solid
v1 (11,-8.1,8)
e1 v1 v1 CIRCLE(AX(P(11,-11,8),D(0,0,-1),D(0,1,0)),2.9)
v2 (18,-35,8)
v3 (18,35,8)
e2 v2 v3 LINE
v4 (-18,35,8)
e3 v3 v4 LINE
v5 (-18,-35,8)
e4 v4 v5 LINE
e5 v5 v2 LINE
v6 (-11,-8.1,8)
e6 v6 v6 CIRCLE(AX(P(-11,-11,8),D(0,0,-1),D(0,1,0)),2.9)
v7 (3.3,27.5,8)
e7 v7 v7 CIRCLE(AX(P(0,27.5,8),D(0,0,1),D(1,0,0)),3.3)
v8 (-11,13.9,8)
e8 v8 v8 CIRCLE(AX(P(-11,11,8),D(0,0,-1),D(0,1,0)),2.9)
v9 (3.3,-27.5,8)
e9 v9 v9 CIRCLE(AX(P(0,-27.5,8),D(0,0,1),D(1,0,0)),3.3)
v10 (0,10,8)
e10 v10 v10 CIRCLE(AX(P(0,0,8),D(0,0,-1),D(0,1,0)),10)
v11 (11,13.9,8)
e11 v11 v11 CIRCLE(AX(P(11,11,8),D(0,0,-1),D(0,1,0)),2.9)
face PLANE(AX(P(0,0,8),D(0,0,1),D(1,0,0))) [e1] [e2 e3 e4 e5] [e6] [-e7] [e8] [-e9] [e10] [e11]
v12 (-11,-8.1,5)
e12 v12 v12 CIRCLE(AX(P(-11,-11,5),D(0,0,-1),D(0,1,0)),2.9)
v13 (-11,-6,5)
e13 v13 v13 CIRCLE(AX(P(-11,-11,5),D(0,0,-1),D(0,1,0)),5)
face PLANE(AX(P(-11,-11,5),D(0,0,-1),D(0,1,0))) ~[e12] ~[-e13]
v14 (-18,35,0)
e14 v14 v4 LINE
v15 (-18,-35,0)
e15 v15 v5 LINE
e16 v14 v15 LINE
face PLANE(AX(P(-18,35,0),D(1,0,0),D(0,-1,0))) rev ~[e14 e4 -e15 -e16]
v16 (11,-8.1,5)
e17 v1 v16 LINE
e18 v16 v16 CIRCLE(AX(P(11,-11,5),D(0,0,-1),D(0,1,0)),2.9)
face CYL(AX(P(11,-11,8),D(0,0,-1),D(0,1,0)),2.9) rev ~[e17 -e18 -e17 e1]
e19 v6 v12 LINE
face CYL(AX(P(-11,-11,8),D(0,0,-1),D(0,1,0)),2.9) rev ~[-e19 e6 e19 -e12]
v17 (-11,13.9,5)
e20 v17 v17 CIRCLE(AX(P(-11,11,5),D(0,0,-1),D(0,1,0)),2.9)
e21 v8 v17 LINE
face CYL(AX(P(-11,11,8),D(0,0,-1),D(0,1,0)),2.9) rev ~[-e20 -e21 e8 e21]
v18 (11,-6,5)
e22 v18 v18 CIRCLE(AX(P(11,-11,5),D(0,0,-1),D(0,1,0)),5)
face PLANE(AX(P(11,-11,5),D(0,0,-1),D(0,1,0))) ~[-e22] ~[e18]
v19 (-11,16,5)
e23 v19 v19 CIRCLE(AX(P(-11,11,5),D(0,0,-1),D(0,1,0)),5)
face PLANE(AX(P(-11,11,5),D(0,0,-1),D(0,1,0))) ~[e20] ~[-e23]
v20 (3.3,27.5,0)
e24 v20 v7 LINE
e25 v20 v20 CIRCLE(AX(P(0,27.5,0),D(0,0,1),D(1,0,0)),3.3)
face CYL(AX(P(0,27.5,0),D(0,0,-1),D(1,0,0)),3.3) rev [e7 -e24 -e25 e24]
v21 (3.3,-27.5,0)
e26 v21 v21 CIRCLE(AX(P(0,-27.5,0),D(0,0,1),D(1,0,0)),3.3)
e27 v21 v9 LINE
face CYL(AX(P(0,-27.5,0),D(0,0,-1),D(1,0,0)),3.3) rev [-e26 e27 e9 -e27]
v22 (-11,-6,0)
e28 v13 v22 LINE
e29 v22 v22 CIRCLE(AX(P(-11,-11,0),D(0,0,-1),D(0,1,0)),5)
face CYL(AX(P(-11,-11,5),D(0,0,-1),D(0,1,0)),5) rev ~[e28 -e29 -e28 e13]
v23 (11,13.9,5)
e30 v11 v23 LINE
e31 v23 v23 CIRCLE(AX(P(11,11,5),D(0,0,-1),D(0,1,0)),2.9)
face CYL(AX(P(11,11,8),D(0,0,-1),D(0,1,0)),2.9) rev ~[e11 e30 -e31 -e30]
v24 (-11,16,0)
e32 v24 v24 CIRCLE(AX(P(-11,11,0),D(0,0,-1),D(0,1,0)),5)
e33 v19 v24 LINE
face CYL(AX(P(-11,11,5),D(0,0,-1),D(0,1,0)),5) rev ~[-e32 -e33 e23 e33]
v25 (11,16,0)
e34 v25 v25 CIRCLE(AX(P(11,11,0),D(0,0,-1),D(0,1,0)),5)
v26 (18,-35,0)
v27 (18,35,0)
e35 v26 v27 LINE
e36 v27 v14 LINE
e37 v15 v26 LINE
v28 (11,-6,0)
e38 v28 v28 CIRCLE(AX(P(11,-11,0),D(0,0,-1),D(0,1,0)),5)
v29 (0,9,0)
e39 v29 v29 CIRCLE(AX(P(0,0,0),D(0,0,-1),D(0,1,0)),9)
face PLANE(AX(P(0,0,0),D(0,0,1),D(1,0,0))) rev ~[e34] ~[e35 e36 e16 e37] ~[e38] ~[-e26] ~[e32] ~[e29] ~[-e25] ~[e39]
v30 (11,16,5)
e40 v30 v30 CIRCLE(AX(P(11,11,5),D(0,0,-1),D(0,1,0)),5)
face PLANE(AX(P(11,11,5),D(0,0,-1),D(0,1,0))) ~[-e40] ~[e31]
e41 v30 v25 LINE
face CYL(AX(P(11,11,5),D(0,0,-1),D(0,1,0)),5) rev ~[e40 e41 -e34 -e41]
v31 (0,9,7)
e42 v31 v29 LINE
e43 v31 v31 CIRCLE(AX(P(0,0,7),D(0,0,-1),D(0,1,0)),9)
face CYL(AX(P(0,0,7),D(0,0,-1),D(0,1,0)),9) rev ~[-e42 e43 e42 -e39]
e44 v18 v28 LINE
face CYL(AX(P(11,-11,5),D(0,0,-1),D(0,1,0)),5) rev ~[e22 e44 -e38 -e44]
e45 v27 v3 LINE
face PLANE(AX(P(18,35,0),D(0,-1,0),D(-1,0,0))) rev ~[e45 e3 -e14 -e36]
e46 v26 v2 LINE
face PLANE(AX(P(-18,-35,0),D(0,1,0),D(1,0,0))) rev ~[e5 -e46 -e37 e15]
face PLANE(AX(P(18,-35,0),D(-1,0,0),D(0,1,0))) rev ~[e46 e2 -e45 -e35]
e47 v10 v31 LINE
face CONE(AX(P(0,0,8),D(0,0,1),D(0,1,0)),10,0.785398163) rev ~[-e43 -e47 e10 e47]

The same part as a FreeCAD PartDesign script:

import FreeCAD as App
import Part
import Sketcher
Q = App.Units.Quantity


def add_polygon(sketch, points):
    """Adds a closed chain of lines whose ends are joined by coincident constraints."""
    first, n = sketch.GeometryCount, len(points)
    for a, b in zip(points, points[1:] + points[:1]):
        sketch.addGeometry(Part.LineSegment(App.Vector(*a, 0), App.Vector(*b, 0)), False)
    for i in range(n):
        sketch.addConstraint(Sketcher.Constraint("Coincident", first + i, 2, first + (i + 1) % n, 1))

doc = App.newDocument("Part")
params = doc.addObject("Spreadsheet::Sheet", "Params")
for row, (alias, value) in enumerate([
    ("sketch1_diameter", "6.6 mm"),
    ("sketch1_width", "36 mm"),
    ("sketch1_height", "70 mm"),
    ("pad1_length", "8 mm"),
    ("sketch2_width", "9 mm"),
    ("sketch2_width2", "10 mm"),
    ("sketch2_height", "8 mm"),
    ("sketch2_height2", "7 mm"),
    ("groove_angle", "360 deg"),
    ("sketch3_width", "5 mm"),
    ("sketch3_height", "8 mm"),
    ("sketch3_width2", "2.1 mm"),
    ("groove2_angle", "360 deg"),
    ("sketch4_width", "5 mm"),
    ("sketch4_height", "8 mm"),
    ("sketch4_width2", "2.1 mm"),
    ("groove3_angle", "360 deg"),
    ("sketch5_width", "5 mm"),
    ("sketch5_height", "8 mm"),
    ("sketch5_width2", "2.1 mm"),
    ("groove4_angle", "360 deg"),
    ("sketch6_width", "5 mm"),
    ("sketch6_height", "8 mm"),
    ("sketch6_width2", "2.1 mm"),
    ("groove5_angle", "360 deg"),
], start=1):
    params.set(f"A{row}", alias)
    params.set(f"B{row}", "=" + value)
    params.setAlias(f"B{row}", alias)

body = doc.addObject("PartDesign::Body", "Body")

# Sketch on XY plane
sketch1 = body.newObject("Sketcher::SketchObject", "Sketch")
sketch1.AttachmentSupport = (doc.getObject("XY_Plane"), [""])
sketch1.MapMode = "FlatFace"
add_polygon(sketch1, [(18, 35), (-18, 35), (-18, -35), (18, -35)])  # lines 0-3
sketch1.addGeometry(Part.Circle(App.Vector(0, -27.5, 0), App.Vector(0, 0, 1), 3.3), False)  # 4
sketch1.addGeometry(Part.Circle(App.Vector(0, 27.5, 0), App.Vector(0, 0, 1), 3.3), False)  # 5
sketch1.addConstraint([
    Sketcher.Constraint("Horizontal", 0),
    Sketcher.Constraint("Vertical", 1),
    Sketcher.Constraint("Horizontal", 2),
    Sketcher.Constraint("Vertical", 3),
    Sketcher.Constraint("Equal", 4, 5),
    Sketcher.Constraint("Symmetric", 4, 3, 5, 3, -1, 1),
    Sketcher.Constraint("Symmetric", 0, 2, 2, 2, -1, 1),
    Sketcher.Constraint("PointOnObject", 4, 3, -2),
    Sketcher.Constraint("Diameter", 4, Q("6.6 mm")),
    Sketcher.Constraint("DistanceX", 0, 2, 0, 1, Q("36 mm")),
    Sketcher.Constraint("DistanceY", 1, 2, 1, 1, Q("70 mm")),
    Sketcher.Constraint("DistanceY", 4, 3, 5, 3, Q("55 mm")),
])
sketch1.setExpression("Constraints[12]", "Params.sketch1_diameter")
sketch1.setExpression("Constraints[13]", "Params.sketch1_width")
sketch1.setExpression("Constraints[14]", "Params.sketch1_height")
pad1 = body.newObject("PartDesign::Pad", "Pad")
pad1.Profile = sketch1
pad1.setExpression("Length", "Params.pad1_length")

# Sketch on YZ plane
sketch2 = body.newObject("Sketcher::SketchObject", "Sketch001")
sketch2.AttachmentSupport = (doc.getObject("YZ_Plane"), [""])
sketch2.MapMode = "FlatFace"
add_polygon(sketch2, [(0, 8), (0, 0), (9, 0), (9, 7), (10, 8)])  # lines 0-4
sketch2.addConstraint([
    Sketcher.Constraint("Vertical", 0),
    Sketcher.Constraint("Horizontal", 1),
    Sketcher.Constraint("Vertical", 2),
    Sketcher.Constraint("Horizontal", 4),
    Sketcher.Constraint("Coincident", 0, 2, -1, 1),
    Sketcher.Constraint("DistanceX", 1, 1, 1, 2, Q("9 mm")),
    Sketcher.Constraint("DistanceX", 4, 2, 4, 1, Q("10 mm")),
    Sketcher.Constraint("DistanceY", 0, 2, 0, 1, Q("8 mm")),
    Sketcher.Constraint("DistanceY", 2, 1, 2, 2, Q("7 mm")),
])
sketch2.setExpression("Constraints[10]", "Params.sketch2_width")
sketch2.setExpression("Constraints[11]", "Params.sketch2_width2")
sketch2.setExpression("Constraints[12]", "Params.sketch2_height")
sketch2.setExpression("Constraints[13]", "Params.sketch2_height2")
groove = body.newObject("PartDesign::Groove", "Groove")
groove.Profile = sketch2
groove.ReferenceAxis = (sketch2, ["V_Axis"])
groove.setExpression("Angle", "Params.groove_angle")

# Sketch on YZ plane
sketch3 = body.newObject("Sketcher::SketchObject", "Sketch002")
sketch3.AttachmentSupport = (doc.getObject("YZ_Plane"), [""])
sketch3.MapMode = "FlatFace"
sketch3.AttachmentOffset = App.Placement(App.Vector(0, 0, 11), App.Rotation())
add_polygon(sketch3, [(11, 8), (11, 0), (16, 0), (16, 5), (13.9, 5), (13.9, 8)])  # lines 0-5
sketch3.addGeometry(Part.LineSegment(App.Vector(11, 8, 0), App.Vector(11, 0, 0)), True)  # axis
sketch3.addConstraint([
    Sketcher.Constraint("Vertical", 0),
    Sketcher.Constraint("Horizontal", 1),
    Sketcher.Constraint("Vertical", 2),
    Sketcher.Constraint("Horizontal", 3),
    Sketcher.Constraint("Vertical", 4),
    Sketcher.Constraint("Horizontal", 5),
    Sketcher.Constraint("Vertical", 6),
    Sketcher.Constraint("Coincident", 6, 1, 5, 2),
    Sketcher.Constraint("PointOnObject", 0, 2, -1),
    Sketcher.Constraint("PointOnObject", 6, 2, -1),
    Sketcher.Constraint("Equal", 1, 2),
    Sketcher.Constraint("DistanceX", 1, 1, 1, 2, Q("5 mm")),
    Sketcher.Constraint("DistanceY", 0, 2, 0, 1, Q("8 mm")),
    Sketcher.Constraint("DistanceX", 3, 2, 3, 1, Q("2.1 mm")),
    Sketcher.Constraint("DistanceX", -1, 1, 0, 2, Q("11 mm")),
])
sketch3.setExpression("Constraints[17]", "Params.sketch3_width")
sketch3.setExpression("Constraints[18]", "Params.sketch3_height")
sketch3.setExpression("Constraints[19]", "Params.sketch3_width2")
groove2 = body.newObject("PartDesign::Groove", "Groove001")
groove2.Profile = sketch3
groove2.ReferenceAxis = (sketch3, ["Axis0"])
groove2.setExpression("Angle", "Params.groove2_angle")

# Sketch on YZ plane
sketch4 = body.newObject("Sketcher::SketchObject", "Sketch003")
sketch4.AttachmentSupport = (doc.getObject("YZ_Plane"), [""])
sketch4.MapMode = "FlatFace"
sketch4.AttachmentOffset = App.Placement(App.Vector(0, 0, -11), App.Rotation())
add_polygon(sketch4, [(11, 8), (11, 0), (16, 0), (16, 5), (13.9, 5), (13.9, 8)])  # lines 0-5
sketch4.addGeometry(Part.LineSegment(App.Vector(11, 8, 0), App.Vector(11, 0, 0)), True)  # axis
sketch4.addConstraint([
    Sketcher.Constraint("Vertical", 0),
    Sketcher.Constraint("Horizontal", 1),
    Sketcher.Constraint("Vertical", 2),
    Sketcher.Constraint("Horizontal", 3),
    Sketcher.Constraint("Vertical", 4),
    Sketcher.Constraint("Horizontal", 5),
    Sketcher.Constraint("Vertical", 6),
    Sketcher.Constraint("Coincident", 6, 1, 5, 2),
    Sketcher.Constraint("PointOnObject", 0, 2, -1),
    Sketcher.Constraint("PointOnObject", 6, 2, -1),
    Sketcher.Constraint("Equal", 1, 2),
    Sketcher.Constraint("DistanceX", 1, 1, 1, 2, Q("5 mm")),
    Sketcher.Constraint("DistanceY", 0, 2, 0, 1, Q("8 mm")),
    Sketcher.Constraint("DistanceX", 3, 2, 3, 1, Q("2.1 mm")),
    Sketcher.Constraint("DistanceX", -1, 1, 0, 2, Q("11 mm")),
])
sketch4.setExpression("Constraints[17]", "Params.sketch4_width")
sketch4.setExpression("Constraints[18]", "Params.sketch4_height")
sketch4.setExpression("Constraints[19]", "Params.sketch4_width2")
groove3 = body.newObject("PartDesign::Groove", "Groove002")
groove3.Profile = sketch4
groove3.ReferenceAxis = (sketch4, ["Axis0"])
groove3.setExpression("Angle", "Params.groove3_angle")

# Sketch on YZ plane
sketch5 = body.newObject("Sketcher::SketchObject", "Sketch004")
sketch5.AttachmentSupport = (doc.getObject("YZ_Plane"), [""])
sketch5.MapMode = "FlatFace"
sketch5.AttachmentOffset = App.Placement(App.Vector(0, 0, 11), App.Rotation())
add_polygon(sketch5, [(-11, 8), (-11, 0), (-6, 0), (-6, 5), (-8.1, 5), (-8.1, 8)])  # lines 0-5
sketch5.addGeometry(Part.LineSegment(App.Vector(-11, 8, 0), App.Vector(-11, 0, 0)), True)  # axis
sketch5.addConstraint([
    Sketcher.Constraint("Vertical", 0),
    Sketcher.Constraint("Horizontal", 1),
    Sketcher.Constraint("Vertical", 2),
    Sketcher.Constraint("Horizontal", 3),
    Sketcher.Constraint("Vertical", 4),
    Sketcher.Constraint("Horizontal", 5),
    Sketcher.Constraint("Vertical", 6),
    Sketcher.Constraint("Coincident", 6, 1, 5, 2),
    Sketcher.Constraint("PointOnObject", 0, 2, -1),
    Sketcher.Constraint("PointOnObject", 6, 2, -1),
    Sketcher.Constraint("Equal", 1, 2),
    Sketcher.Constraint("DistanceX", 1, 1, 1, 2, Q("5 mm")),
    Sketcher.Constraint("DistanceY", 0, 2, 0, 1, Q("8 mm")),
    Sketcher.Constraint("DistanceX", 3, 2, 3, 1, Q("2.1 mm")),
    Sketcher.Constraint("DistanceX", 0, 2, -1, 1, Q("11 mm")),
])
sketch5.setExpression("Constraints[17]", "Params.sketch5_width")
sketch5.setExpression("Constraints[18]", "Params.sketch5_height")
sketch5.setExpression("Constraints[19]", "Params.sketch5_width2")
groove4 = body.newObject("PartDesign::Groove", "Groove003")
groove4.Profile = sketch5
groove4.ReferenceAxis = (sketch5, ["Axis0"])
groove4.setExpression("Angle", "Params.groove4_angle")

# Sketch on YZ plane
sketch6 = body.newObject("Sketcher::SketchObject", "Sketch005")
sketch6.AttachmentSupport = (doc.getObject("YZ_Plane"), [""])
sketch6.MapMode = "FlatFace"
sketch6.AttachmentOffset = App.Placement(App.Vector(0, 0, -11), App.Rotation())
add_polygon(sketch6, [(-11, 8), (-11, 0), (-6, 0), (-6, 5), (-8.1, 5), (-8.1, 8)])  # lines 0-5
sketch6.addGeometry(Part.LineSegment(App.Vector(-11, 8, 0), App.Vector(-11, 0, 0)), True)  # axis
sketch6.addConstraint([
    Sketcher.Constraint("Vertical", 0),
    Sketcher.Constraint("Horizontal", 1),
    Sketcher.Constraint("Vertical", 2),
    Sketcher.Constraint("Horizontal", 3),
    Sketcher.Constraint("Vertical", 4),
    Sketcher.Constraint("Horizontal", 5),
    Sketcher.Constraint("Vertical", 6),
    Sketcher.Constraint("Coincident", 6, 1, 5, 2),
    Sketcher.Constraint("PointOnObject", 0, 2, -1),
    Sketcher.Constraint("PointOnObject", 6, 2, -1),
    Sketcher.Constraint("Equal", 1, 2),
    Sketcher.Constraint("DistanceX", 1, 1, 1, 2, Q("5 mm")),
    Sketcher.Constraint("DistanceY", 0, 2, 0, 1, Q("8 mm")),
    Sketcher.Constraint("DistanceX", 3, 2, 3, 1, Q("2.1 mm")),
    Sketcher.Constraint("DistanceX", 0, 2, -1, 1, Q("11 mm")),
])
sketch6.setExpression("Constraints[17]", "Params.sketch6_width")
sketch6.setExpression("Constraints[18]", "Params.sketch6_height")
sketch6.setExpression("Constraints[19]", "Params.sketch6_width2")
groove5 = body.newObject("PartDesign::Groove", "Groove004")
groove5.Profile = sketch6
groove5.ReferenceAxis = (sketch6, ["Axis0"])
groove5.setExpression("Angle", "Params.groove5_angle")

doc.recompute()
